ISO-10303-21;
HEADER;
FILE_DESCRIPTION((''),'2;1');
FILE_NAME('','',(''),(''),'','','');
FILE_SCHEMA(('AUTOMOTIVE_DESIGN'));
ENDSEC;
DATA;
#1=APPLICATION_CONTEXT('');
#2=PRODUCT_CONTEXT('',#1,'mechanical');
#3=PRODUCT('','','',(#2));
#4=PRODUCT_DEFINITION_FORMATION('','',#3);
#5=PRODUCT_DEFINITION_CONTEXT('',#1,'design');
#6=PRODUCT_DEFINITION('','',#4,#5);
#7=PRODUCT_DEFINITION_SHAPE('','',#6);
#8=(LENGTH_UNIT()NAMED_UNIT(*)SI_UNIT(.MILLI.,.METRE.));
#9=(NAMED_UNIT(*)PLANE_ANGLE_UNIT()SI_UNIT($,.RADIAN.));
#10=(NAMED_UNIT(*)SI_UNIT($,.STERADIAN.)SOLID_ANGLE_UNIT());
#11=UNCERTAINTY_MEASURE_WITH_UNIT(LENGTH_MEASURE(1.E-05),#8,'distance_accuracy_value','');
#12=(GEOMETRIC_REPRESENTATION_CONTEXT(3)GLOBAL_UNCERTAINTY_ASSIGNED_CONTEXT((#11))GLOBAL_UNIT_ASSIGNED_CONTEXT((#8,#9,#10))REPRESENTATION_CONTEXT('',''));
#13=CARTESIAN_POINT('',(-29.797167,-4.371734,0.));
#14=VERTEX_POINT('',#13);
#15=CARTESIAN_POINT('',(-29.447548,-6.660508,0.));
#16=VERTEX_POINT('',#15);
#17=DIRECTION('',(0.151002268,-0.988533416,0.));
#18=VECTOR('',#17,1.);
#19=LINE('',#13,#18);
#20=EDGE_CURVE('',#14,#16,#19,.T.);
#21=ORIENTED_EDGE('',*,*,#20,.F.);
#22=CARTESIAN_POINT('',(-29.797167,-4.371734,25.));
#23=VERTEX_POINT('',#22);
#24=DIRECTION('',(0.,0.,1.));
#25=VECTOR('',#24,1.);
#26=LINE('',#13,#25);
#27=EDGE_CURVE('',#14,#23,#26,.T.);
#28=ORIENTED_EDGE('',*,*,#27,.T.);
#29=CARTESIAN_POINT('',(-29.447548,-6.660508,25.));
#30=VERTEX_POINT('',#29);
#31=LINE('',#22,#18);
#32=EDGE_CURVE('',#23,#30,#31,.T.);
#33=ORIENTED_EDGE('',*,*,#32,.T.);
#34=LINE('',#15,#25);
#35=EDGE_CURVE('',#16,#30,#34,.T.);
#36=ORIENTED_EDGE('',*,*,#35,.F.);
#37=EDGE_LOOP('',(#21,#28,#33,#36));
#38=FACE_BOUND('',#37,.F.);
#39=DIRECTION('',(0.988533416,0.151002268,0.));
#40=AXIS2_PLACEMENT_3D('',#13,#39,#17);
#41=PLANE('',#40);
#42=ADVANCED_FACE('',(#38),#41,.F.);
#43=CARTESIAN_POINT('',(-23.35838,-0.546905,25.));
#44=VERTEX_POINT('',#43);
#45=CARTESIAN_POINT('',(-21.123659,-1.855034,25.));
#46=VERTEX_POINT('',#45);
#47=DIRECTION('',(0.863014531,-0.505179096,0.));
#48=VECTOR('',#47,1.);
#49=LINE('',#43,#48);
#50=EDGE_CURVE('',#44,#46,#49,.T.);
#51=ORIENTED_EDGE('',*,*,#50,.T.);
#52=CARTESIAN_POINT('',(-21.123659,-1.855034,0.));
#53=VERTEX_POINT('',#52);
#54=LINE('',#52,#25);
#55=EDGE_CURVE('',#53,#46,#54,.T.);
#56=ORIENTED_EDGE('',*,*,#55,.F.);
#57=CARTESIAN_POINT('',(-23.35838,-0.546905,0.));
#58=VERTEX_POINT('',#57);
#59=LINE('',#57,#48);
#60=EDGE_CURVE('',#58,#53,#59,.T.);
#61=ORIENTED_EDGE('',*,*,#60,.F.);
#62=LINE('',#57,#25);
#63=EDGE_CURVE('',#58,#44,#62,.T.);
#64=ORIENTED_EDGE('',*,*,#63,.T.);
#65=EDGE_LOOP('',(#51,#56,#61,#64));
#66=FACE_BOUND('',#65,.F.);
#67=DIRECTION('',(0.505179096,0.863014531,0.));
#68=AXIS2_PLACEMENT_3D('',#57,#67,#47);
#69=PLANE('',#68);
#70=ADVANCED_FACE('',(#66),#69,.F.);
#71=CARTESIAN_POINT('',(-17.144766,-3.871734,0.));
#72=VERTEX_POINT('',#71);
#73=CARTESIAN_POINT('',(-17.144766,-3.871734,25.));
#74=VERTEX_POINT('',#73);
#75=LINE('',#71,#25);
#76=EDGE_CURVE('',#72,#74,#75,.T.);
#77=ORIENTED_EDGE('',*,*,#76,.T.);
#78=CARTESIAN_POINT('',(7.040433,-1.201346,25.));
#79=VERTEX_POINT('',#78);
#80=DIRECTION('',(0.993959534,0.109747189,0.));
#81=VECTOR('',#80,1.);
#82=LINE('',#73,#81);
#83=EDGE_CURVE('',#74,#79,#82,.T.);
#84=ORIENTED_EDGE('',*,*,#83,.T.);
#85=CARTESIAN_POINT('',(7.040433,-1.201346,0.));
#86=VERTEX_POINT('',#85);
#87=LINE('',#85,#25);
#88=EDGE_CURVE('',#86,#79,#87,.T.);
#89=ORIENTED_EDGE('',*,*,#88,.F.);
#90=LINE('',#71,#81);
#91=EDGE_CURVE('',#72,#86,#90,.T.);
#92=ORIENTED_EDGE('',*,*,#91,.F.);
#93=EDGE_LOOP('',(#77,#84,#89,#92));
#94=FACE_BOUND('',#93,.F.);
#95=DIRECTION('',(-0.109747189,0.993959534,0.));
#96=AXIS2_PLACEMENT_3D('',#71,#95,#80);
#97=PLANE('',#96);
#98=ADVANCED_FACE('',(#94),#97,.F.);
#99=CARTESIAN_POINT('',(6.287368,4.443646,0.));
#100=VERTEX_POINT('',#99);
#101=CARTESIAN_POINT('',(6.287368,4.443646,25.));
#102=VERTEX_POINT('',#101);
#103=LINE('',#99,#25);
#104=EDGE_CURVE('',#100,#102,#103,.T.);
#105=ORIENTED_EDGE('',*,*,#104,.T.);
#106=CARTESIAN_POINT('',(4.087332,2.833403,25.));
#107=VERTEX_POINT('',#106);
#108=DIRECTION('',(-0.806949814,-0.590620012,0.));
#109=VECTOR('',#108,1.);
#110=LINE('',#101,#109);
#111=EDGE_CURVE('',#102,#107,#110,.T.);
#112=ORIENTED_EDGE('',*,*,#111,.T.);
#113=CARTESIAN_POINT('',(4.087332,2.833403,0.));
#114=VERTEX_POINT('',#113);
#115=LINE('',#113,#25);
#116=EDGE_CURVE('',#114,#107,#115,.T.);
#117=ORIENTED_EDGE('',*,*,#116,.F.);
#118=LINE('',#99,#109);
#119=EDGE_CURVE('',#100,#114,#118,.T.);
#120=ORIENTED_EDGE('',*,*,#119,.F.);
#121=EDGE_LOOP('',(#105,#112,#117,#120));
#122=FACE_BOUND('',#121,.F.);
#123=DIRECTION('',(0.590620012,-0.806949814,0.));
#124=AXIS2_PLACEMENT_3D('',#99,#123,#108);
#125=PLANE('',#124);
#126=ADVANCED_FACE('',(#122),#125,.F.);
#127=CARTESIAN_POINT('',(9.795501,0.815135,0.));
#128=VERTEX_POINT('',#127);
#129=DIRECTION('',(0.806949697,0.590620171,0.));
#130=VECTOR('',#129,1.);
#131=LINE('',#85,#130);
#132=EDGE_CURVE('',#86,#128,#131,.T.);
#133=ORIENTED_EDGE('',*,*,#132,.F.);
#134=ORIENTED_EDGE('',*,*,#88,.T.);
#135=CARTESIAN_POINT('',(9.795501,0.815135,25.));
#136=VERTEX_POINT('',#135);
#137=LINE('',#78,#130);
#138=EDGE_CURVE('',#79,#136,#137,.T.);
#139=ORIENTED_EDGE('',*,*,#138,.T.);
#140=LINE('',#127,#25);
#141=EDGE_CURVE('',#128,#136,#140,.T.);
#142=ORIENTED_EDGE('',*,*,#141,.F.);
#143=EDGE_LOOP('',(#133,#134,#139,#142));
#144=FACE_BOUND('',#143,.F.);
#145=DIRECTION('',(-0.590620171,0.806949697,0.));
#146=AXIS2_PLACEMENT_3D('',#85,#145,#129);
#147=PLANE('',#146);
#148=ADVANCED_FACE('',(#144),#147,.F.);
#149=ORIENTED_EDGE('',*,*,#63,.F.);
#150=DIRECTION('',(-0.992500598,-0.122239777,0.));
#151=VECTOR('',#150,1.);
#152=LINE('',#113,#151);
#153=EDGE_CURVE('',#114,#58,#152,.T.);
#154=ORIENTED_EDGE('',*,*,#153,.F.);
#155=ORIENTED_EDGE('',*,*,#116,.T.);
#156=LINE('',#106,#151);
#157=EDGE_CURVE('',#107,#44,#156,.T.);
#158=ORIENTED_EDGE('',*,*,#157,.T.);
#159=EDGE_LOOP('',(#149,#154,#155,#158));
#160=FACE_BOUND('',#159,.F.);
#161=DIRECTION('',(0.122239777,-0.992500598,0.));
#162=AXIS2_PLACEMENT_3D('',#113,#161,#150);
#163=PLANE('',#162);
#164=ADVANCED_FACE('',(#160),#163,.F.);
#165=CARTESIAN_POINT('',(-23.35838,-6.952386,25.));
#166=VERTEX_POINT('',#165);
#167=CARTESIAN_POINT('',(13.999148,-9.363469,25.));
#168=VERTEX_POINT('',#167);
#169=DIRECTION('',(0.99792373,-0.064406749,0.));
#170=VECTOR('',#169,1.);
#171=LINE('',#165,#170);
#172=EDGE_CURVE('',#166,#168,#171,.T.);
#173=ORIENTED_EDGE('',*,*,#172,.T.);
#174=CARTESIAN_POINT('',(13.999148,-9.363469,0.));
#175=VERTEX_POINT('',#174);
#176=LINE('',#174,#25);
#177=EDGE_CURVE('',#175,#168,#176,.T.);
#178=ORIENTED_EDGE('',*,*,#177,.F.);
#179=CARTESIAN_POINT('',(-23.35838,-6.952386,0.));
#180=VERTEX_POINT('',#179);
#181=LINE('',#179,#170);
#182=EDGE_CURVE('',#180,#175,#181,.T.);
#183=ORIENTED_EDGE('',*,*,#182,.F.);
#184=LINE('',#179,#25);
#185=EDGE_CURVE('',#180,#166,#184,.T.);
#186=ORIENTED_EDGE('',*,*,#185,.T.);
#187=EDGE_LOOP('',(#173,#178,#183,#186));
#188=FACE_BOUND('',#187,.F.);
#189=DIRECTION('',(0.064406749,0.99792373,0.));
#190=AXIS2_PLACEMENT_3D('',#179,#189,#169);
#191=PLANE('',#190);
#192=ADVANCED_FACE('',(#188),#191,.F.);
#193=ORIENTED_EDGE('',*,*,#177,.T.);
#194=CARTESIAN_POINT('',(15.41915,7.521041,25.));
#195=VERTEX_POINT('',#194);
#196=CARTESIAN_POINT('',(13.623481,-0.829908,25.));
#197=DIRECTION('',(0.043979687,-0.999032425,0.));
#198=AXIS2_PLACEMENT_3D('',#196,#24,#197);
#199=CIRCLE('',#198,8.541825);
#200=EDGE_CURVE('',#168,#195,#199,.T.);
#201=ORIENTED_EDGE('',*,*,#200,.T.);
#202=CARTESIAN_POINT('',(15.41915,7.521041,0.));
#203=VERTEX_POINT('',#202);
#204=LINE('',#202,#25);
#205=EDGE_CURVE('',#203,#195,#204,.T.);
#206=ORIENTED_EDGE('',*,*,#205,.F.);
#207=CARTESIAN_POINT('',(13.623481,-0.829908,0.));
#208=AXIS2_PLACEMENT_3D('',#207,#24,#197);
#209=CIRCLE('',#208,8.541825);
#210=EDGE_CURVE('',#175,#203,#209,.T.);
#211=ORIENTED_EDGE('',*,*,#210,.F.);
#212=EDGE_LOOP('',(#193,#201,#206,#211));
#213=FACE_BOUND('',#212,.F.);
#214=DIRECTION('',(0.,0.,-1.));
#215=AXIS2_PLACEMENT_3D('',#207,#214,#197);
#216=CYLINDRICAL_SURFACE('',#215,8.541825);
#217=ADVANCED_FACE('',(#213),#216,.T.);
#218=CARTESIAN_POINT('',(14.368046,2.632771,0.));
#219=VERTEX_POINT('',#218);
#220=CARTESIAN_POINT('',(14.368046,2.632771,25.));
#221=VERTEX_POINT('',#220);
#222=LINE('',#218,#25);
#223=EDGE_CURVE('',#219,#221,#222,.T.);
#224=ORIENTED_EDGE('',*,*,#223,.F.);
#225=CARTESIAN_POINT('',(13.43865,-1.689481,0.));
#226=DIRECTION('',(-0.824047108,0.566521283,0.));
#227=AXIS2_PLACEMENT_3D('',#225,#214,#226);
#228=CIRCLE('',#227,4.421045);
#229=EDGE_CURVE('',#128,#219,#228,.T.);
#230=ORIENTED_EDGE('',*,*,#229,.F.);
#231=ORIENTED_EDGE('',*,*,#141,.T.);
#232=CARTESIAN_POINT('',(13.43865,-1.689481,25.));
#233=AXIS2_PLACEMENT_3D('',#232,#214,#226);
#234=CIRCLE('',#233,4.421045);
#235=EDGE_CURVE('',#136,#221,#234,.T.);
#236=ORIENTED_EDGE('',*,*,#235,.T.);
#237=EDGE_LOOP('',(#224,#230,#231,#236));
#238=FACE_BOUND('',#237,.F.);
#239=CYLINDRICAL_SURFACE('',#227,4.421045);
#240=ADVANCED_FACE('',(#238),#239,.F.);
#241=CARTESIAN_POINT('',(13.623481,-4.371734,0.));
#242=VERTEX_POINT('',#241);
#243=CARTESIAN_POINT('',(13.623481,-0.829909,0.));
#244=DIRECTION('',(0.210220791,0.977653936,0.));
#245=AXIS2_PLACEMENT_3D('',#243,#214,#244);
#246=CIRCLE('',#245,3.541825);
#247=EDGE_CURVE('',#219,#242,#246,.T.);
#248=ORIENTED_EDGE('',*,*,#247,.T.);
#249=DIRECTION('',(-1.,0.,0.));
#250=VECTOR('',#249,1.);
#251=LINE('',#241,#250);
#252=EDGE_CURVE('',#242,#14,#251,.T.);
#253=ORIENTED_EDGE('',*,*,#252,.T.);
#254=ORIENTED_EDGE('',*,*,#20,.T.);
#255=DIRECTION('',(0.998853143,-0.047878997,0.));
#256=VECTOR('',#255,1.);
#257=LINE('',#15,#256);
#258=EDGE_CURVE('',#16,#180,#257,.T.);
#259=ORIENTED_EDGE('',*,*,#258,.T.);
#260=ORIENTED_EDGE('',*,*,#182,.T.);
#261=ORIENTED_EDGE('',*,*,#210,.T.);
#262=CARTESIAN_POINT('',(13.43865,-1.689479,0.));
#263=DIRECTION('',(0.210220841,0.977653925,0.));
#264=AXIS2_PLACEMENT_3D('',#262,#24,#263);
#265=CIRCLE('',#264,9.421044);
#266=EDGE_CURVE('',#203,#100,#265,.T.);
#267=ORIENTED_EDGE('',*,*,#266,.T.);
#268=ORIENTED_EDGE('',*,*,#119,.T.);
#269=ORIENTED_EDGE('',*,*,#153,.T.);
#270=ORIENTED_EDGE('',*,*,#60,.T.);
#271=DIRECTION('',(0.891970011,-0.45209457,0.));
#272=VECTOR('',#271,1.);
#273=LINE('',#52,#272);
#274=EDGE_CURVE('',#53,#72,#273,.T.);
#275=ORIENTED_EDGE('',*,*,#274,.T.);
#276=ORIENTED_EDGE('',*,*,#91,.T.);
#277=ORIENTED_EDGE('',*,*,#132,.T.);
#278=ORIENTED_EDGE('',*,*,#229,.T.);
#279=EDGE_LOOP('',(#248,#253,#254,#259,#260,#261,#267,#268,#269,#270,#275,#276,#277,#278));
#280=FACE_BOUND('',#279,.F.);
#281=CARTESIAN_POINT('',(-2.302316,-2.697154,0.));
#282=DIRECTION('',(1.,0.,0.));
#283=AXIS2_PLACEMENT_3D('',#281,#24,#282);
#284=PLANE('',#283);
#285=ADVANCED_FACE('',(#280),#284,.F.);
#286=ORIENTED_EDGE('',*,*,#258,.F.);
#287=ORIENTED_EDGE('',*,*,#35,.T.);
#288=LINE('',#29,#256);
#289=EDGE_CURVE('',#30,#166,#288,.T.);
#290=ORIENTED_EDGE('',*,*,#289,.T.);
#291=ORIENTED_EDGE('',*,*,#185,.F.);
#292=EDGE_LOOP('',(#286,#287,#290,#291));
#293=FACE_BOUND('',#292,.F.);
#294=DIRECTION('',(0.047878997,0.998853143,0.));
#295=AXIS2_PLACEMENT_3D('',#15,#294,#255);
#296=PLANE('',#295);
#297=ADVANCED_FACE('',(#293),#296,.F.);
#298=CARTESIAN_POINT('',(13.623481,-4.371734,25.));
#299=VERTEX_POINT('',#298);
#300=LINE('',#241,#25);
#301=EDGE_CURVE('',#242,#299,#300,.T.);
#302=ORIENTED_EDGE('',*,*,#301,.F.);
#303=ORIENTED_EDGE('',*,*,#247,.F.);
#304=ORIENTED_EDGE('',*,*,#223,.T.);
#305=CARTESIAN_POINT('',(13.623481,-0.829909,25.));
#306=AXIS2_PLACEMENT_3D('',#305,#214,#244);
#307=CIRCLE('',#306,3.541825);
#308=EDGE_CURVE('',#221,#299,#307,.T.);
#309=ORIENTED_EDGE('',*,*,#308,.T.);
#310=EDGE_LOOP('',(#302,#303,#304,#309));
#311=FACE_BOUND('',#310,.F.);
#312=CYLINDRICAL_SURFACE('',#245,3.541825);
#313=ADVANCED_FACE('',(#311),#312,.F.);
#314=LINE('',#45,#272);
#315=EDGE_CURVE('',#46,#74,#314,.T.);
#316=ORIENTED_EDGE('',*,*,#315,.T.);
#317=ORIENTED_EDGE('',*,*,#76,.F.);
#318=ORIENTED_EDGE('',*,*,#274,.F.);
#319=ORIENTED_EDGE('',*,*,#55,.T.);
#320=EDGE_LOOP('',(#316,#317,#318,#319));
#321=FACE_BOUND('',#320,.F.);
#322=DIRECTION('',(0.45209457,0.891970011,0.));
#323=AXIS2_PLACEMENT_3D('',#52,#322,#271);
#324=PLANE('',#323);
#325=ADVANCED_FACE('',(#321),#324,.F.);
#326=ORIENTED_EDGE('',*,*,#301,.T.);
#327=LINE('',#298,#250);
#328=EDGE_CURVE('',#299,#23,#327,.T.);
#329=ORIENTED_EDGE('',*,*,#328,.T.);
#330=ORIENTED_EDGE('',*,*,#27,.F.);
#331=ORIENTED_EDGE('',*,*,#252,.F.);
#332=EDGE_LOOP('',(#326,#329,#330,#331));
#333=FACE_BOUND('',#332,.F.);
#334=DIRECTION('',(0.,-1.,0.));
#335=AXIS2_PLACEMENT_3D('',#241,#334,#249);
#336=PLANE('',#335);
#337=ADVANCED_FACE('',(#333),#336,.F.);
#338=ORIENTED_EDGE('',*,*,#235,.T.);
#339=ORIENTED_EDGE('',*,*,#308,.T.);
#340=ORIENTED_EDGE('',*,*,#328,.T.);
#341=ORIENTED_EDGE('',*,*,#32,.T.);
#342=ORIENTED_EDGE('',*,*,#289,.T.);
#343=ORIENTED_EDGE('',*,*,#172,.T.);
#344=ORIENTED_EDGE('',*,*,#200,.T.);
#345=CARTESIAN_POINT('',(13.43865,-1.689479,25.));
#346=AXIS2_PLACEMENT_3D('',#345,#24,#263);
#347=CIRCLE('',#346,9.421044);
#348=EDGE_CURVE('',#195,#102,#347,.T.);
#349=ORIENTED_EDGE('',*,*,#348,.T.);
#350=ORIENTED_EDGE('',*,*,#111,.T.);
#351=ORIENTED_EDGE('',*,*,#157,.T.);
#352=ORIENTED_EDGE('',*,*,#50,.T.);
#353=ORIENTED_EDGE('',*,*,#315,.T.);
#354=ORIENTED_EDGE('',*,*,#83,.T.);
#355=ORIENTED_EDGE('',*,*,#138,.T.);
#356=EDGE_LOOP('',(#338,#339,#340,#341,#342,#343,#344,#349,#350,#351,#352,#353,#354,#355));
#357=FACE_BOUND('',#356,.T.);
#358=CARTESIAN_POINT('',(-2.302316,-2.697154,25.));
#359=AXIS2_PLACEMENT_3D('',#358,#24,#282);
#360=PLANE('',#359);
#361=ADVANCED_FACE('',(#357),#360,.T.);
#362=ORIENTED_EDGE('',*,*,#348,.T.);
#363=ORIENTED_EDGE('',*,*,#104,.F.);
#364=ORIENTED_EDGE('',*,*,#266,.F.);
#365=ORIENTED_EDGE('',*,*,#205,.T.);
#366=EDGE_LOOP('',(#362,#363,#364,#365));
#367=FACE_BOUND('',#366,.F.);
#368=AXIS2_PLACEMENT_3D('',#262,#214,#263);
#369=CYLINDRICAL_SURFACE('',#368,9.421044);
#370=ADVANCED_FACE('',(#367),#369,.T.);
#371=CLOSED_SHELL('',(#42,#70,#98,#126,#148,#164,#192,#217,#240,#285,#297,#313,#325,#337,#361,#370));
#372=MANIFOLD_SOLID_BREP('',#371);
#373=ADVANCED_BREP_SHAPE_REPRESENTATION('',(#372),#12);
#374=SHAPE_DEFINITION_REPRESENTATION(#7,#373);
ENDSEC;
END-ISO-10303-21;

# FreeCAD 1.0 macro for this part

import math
import FreeCAD as App
import Part
import Sketcher
from FreeCAD import Vector

doc = App.newDocument("Part")
body = doc.addObject("PartDesign::Body", "Body")

# Sketch on XY plane
sketch1 = body.newObject("Sketcher::SketchObject", "Sketch")
sketch1.AttachmentSupport = (doc.getObject("XY_Plane"), [""])
sketch1.MapMode = "FlatFace"
sketch1.addGeometry(Part.LineSegment(Vector(13.6, -4.4, 0), Vector(-29.8, -4.4, 0)), False)
sketch1.addGeometry(Part.LineSegment(Vector(-29.8, -4.4, 0), Vector(-29.4, -6.7, 0)), False)
sketch1.addGeometry(Part.LineSegment(Vector(-29.4, -6.7, 0), Vector(-23.4, -7, 0)), False)
sketch1.addGeometry(Part.LineSegment(Vector(-23.4, -7, 0), Vector(14, -9.4, 0)), False)
sketch1.addGeometry(Part.ArcOfCircle(Part.Circle(Vector(13.6, -0.8, 0), Vector(0, 0, 1), 8.5), math.radians(-87), math.radians(78)), False)
sketch1.addGeometry(Part.ArcOfCircle(Part.Circle(Vector(13.4, -1.7, 0), Vector(0, 0, 1), 9.4), math.radians(78), math.radians(139)), False)
sketch1.addGeometry(Part.LineSegment(Vector(6.3, 4.4, 0), Vector(4.1, 2.8, 0)), False)
sketch1.addGeometry(Part.LineSegment(Vector(4.1, 2.8, 0), Vector(-23.4, -0.5, 0)), False)
sketch1.addGeometry(Part.LineSegment(Vector(-23.4, -0.5, 0), Vector(-21.1, -1.9, 0)), False)
sketch1.addGeometry(Part.LineSegment(Vector(-21.1, -1.9, 0), Vector(-17.1, -3.9, 0)), False)
sketch1.addGeometry(Part.LineSegment(Vector(-17.1, -3.9, 0), Vector(7, -1.2, 0)), False)
sketch1.addGeometry(Part.LineSegment(Vector(7, -1.2, 0), Vector(9.8, 0.8, 0)), False)
sketch1.addGeometry(Part.ArcOfCircle(Part.Circle(Vector(13.4, -1.7, 0), Vector(0, 0, 1), 4.4), math.radians(78), math.radians(145)), False)
sketch1.addGeometry(Part.ArcOfCircle(Part.Circle(Vector(13.6, -0.8, 0), Vector(0, 0, 1), 3.5), math.radians(-90), math.radians(78)), False)
sketch1.addConstraint(Sketcher.Constraint("Coincident", 0, 2, 1, 1))
sketch1.addConstraint(Sketcher.Constraint("Coincident", 1, 2, 2, 1))
sketch1.addConstraint(Sketcher.Constraint("Coincident", 2, 2, 3, 1))
sketch1.addConstraint(Sketcher.Constraint("Coincident", 3, 2, 4, 1))
sketch1.addConstraint(Sketcher.Constraint("Tangent", 4, 2, 5, 1))
sketch1.addConstraint(Sketcher.Constraint("Coincident", 5, 2, 6, 1))
sketch1.addConstraint(Sketcher.Constraint("Coincident", 6, 2, 7, 1))
sketch1.addConstraint(Sketcher.Constraint("Coincident", 7, 2, 8, 1))
sketch1.addConstraint(Sketcher.Constraint("Coincident", 8, 2, 9, 1))
sketch1.addConstraint(Sketcher.Constraint("Coincident", 9, 2, 10, 1))
sketch1.addConstraint(Sketcher.Constraint("Coincident", 10, 2, 11, 1))
sketch1.addConstraint(Sketcher.Constraint("Coincident", 11, 2, 12, 2))
sketch1.addConstraint(Sketcher.Constraint("Tangent", 12, 1, 13, 2))
sketch1.addConstraint(Sketcher.Constraint("Tangent", 13, 1, 0, 1))
sketch1.addConstraint(Sketcher.Constraint("Horizontal", 0))
sketch1.addConstraint(Sketcher.Constraint("Coincident", 12, 3, 5, 3))
sketch1.addConstraint(Sketcher.Constraint("Coincident", 13, 3, 4, 3))
sketch1.addConstraint(Sketcher.Constraint("Parallel", 6, 11))
sketch1.addConstraint(Sketcher.Constraint("Vertical", 2, 2, 7, 2))
sketch1.addConstraint(Sketcher.Constraint("DistanceY", 0, 2, 9, 2, 0.5))
sketch1.addConstraint(Sketcher.Constraint("DistanceX", 3, 2, 4, 2, 1.420002))
sketch1.addConstraint(Sketcher.Constraint("Radius", 4, 8.541825))
sketch1.addConstraint(Sketcher.Constraint("Radius", 5, 9.421044))
sketch1.addConstraint(Sketcher.Constraint("Radius", 12, 4.421045))
sketch1.addConstraint(Sketcher.Constraint("DistanceX", -1, 1, 11, 2, 9.795501))
sketch1.addConstraint(Sketcher.Constraint("DistanceX", 1, 2, 12, 3, 42.886198))
sketch1.addConstraint(Sketcher.Constraint("DistanceY", 1, 2, 13, 3, 5.830599))
sketch1.addConstraint(Sketcher.Constraint("DistanceX", 5, 3, 4, 2, 1.9805))
sketch1.addConstraint(Sketcher.Constraint("DistanceY", 0, 2, 8, 2, 2.5167))
sketch1.addConstraint(Sketcher.Constraint("DistanceX", 0, 2, 9, 2, 12.652401))
sketch1.addConstraint(Sketcher.Constraint("DistanceX", 6, 2, 10, 2, 2.953101))
sketch1.addConstraint(Sketcher.Constraint("Distance", 2, 6.096159))
sketch1.addConstraint(Sketcher.Constraint("Distance", 6, 2.72636))
sketch1.addConstraint(Sketcher.Constraint("DistanceX", 0, 2, 0, 1, 43.420648))
sketch1.addConstraint(Sketcher.Constraint("DistanceX", -1, 1, 4, 3, 13.623481))
sketch1.addConstraint(Sketcher.Constraint("DistanceY", 4, 3, -1, 1, 0.829908))
sketch1.addConstraint(Sketcher.Constraint("DistanceX", 2, 2, -1, 1, 23.35838))
sketch1.addConstraint(Sketcher.Constraint("DistanceX", -1, 1, 5, 2, 6.287368))
sketch1.addConstraint(Sketcher.Constraint("DistanceX", 8, 2, -1, 1, 21.123659))
sketch1.addConstraint(Sketcher.Constraint("DistanceX", 6, 2, 13, 3, 9.536149))
sketch1.addConstraint(Sketcher.Constraint("DistanceY", 2, 2, 7, 2, 6.405481))
pad1 = body.newObject("PartDesign::Pad", "Pad")
pad1.Profile = sketch1
pad1.Length = 25

doc.recompute()
